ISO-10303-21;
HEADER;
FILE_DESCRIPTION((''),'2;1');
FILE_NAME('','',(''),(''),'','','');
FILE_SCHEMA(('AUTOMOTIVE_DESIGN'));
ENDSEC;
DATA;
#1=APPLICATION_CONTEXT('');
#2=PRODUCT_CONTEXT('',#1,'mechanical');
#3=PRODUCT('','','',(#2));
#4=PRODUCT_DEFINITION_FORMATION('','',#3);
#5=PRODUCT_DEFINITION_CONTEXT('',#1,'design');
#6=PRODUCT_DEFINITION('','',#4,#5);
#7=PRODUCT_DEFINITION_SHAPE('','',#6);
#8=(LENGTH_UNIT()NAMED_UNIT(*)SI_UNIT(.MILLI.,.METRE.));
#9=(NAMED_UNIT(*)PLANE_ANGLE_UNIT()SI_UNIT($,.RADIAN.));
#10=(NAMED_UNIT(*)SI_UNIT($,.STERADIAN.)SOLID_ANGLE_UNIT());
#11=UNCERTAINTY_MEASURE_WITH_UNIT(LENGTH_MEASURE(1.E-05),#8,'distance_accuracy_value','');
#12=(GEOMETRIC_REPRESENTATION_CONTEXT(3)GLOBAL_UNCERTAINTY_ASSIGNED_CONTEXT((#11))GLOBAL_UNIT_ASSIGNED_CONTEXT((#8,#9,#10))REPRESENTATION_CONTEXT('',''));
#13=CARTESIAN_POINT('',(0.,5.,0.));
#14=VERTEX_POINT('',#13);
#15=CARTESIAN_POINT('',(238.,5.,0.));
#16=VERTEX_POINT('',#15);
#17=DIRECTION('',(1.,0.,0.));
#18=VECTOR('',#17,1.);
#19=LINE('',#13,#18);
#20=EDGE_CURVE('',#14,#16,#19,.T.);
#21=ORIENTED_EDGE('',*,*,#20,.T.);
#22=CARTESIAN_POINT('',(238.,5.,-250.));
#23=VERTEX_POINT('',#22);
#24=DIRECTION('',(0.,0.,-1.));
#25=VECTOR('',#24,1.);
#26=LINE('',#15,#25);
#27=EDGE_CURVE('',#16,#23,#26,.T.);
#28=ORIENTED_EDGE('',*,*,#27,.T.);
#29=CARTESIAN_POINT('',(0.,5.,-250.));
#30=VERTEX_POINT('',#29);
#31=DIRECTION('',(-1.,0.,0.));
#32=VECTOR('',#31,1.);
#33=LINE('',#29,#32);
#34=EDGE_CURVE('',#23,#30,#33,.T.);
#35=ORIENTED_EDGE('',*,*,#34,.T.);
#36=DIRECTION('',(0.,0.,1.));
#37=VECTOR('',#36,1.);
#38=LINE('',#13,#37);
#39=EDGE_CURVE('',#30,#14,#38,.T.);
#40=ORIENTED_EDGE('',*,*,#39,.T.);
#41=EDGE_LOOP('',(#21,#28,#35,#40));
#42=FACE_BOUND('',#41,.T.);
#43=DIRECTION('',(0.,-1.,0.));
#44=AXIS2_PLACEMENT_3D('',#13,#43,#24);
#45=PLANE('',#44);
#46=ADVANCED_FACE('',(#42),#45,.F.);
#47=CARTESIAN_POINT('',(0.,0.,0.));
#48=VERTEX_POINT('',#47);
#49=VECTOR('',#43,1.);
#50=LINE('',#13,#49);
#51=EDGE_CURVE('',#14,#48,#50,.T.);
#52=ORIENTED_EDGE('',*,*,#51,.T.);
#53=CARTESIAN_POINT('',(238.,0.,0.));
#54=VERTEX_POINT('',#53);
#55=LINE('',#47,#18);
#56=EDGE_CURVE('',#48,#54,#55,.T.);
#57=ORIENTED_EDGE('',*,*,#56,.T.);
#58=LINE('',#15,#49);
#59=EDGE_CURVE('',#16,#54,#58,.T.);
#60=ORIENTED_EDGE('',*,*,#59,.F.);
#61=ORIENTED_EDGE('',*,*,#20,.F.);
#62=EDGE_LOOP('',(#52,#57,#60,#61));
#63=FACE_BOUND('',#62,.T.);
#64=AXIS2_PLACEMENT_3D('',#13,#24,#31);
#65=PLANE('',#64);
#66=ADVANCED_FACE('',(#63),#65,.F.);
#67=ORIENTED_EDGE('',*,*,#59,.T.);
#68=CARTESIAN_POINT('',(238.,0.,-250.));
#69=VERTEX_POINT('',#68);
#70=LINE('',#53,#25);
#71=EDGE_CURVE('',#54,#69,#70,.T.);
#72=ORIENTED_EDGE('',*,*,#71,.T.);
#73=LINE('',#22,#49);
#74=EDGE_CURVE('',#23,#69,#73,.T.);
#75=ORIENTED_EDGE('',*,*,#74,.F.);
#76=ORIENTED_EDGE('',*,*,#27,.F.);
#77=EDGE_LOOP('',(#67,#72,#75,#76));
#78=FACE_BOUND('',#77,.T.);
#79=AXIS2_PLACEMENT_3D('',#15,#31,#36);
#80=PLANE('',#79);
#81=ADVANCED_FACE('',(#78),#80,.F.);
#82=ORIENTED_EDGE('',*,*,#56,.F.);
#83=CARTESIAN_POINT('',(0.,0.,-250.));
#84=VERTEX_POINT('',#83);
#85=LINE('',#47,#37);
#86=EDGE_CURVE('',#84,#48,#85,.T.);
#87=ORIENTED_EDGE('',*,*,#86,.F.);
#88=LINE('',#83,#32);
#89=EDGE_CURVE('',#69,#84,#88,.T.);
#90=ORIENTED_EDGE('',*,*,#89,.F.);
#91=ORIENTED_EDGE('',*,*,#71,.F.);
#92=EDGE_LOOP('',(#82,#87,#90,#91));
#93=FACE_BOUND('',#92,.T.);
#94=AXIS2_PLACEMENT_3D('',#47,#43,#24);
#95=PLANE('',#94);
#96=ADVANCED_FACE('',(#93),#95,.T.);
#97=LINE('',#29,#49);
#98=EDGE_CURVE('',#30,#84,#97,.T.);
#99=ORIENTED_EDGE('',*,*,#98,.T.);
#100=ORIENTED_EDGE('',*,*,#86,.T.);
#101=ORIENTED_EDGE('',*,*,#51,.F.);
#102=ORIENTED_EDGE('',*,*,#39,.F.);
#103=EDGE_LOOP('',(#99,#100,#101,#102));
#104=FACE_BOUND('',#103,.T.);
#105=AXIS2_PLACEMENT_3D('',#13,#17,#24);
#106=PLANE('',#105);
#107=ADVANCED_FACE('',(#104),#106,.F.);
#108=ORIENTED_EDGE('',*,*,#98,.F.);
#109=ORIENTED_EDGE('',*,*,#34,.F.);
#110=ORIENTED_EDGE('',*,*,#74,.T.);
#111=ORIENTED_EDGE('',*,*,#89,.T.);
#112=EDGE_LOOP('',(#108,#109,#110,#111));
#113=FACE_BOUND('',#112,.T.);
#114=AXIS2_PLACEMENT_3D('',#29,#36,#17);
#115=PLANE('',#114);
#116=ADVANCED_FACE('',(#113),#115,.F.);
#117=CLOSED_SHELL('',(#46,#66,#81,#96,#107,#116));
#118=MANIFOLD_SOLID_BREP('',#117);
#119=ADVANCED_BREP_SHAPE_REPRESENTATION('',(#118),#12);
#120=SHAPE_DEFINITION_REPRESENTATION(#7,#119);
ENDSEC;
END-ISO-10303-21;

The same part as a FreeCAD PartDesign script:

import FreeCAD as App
import Part
import Sketcher
from FreeCAD import Vector
Q = App.Units.Quantity

doc = App.newDocument("Part")
body = doc.addObject("PartDesign::Body", "Body")

# Sketch on XZ plane
sketch1 = body.newObject("Sketcher::SketchObject", "Sketch")
sketch1.AttachmentSupport = (doc.getObject("XZ_Plane"), [""])
sketch1.MapMode = "FlatFace"
sketch1.addGeometry(Part.LineSegment(Vector(0, -250, 0), Vector(0, 0, 0)), False)
sketch1.addGeometry(Part.LineSegment(Vector(0, 0, 0), Vector(238, 0, 0)), False)
sketch1.addGeometry(Part.LineSegment(Vector(238, 0, 0), Vector(238, -250, 0)), False)
sketch1.addGeometry(Part.LineSegment(Vector(238, -250, 0), Vector(0, -250, 0)), False)
sketch1.addConstraint(Sketcher.Constraint("Coincident", 0, 2, 1, 1))
sketch1.addConstraint(Sketcher.Constraint("Coincident", 1, 2, 2, 1))
sketch1.addConstraint(Sketcher.Constraint("Coincident", 2, 2, 3, 1))
sketch1.addConstraint(Sketcher.Constraint("Coincident", 3, 2, 0, 1))
sketch1.addConstraint(Sketcher.Constraint("Vertical", 0))
sketch1.addConstraint(Sketcher.Constraint("Horizontal", 1))
sketch1.addConstraint(Sketcher.Constraint("Vertical", 2))
sketch1.addConstraint(Sketcher.Constraint("Horizontal", 3))
sketch1.addConstraint(Sketcher.Constraint("Coincident", 0, 2, -1, 1))
sketch1.addConstraint(Sketcher.Constraint("DistanceX", 1, 1, 1, 2, Q("238 mm")))
sketch1.addConstraint(Sketcher.Constraint("DistanceY", 0, 1, 0, 2, Q("250 mm")))
pad1 = body.newObject("PartDesign::Pad", "Pad")
pad1.Profile = sketch1
pad1.Length = 5
pad1.Reversed = True

doc.recompute()
